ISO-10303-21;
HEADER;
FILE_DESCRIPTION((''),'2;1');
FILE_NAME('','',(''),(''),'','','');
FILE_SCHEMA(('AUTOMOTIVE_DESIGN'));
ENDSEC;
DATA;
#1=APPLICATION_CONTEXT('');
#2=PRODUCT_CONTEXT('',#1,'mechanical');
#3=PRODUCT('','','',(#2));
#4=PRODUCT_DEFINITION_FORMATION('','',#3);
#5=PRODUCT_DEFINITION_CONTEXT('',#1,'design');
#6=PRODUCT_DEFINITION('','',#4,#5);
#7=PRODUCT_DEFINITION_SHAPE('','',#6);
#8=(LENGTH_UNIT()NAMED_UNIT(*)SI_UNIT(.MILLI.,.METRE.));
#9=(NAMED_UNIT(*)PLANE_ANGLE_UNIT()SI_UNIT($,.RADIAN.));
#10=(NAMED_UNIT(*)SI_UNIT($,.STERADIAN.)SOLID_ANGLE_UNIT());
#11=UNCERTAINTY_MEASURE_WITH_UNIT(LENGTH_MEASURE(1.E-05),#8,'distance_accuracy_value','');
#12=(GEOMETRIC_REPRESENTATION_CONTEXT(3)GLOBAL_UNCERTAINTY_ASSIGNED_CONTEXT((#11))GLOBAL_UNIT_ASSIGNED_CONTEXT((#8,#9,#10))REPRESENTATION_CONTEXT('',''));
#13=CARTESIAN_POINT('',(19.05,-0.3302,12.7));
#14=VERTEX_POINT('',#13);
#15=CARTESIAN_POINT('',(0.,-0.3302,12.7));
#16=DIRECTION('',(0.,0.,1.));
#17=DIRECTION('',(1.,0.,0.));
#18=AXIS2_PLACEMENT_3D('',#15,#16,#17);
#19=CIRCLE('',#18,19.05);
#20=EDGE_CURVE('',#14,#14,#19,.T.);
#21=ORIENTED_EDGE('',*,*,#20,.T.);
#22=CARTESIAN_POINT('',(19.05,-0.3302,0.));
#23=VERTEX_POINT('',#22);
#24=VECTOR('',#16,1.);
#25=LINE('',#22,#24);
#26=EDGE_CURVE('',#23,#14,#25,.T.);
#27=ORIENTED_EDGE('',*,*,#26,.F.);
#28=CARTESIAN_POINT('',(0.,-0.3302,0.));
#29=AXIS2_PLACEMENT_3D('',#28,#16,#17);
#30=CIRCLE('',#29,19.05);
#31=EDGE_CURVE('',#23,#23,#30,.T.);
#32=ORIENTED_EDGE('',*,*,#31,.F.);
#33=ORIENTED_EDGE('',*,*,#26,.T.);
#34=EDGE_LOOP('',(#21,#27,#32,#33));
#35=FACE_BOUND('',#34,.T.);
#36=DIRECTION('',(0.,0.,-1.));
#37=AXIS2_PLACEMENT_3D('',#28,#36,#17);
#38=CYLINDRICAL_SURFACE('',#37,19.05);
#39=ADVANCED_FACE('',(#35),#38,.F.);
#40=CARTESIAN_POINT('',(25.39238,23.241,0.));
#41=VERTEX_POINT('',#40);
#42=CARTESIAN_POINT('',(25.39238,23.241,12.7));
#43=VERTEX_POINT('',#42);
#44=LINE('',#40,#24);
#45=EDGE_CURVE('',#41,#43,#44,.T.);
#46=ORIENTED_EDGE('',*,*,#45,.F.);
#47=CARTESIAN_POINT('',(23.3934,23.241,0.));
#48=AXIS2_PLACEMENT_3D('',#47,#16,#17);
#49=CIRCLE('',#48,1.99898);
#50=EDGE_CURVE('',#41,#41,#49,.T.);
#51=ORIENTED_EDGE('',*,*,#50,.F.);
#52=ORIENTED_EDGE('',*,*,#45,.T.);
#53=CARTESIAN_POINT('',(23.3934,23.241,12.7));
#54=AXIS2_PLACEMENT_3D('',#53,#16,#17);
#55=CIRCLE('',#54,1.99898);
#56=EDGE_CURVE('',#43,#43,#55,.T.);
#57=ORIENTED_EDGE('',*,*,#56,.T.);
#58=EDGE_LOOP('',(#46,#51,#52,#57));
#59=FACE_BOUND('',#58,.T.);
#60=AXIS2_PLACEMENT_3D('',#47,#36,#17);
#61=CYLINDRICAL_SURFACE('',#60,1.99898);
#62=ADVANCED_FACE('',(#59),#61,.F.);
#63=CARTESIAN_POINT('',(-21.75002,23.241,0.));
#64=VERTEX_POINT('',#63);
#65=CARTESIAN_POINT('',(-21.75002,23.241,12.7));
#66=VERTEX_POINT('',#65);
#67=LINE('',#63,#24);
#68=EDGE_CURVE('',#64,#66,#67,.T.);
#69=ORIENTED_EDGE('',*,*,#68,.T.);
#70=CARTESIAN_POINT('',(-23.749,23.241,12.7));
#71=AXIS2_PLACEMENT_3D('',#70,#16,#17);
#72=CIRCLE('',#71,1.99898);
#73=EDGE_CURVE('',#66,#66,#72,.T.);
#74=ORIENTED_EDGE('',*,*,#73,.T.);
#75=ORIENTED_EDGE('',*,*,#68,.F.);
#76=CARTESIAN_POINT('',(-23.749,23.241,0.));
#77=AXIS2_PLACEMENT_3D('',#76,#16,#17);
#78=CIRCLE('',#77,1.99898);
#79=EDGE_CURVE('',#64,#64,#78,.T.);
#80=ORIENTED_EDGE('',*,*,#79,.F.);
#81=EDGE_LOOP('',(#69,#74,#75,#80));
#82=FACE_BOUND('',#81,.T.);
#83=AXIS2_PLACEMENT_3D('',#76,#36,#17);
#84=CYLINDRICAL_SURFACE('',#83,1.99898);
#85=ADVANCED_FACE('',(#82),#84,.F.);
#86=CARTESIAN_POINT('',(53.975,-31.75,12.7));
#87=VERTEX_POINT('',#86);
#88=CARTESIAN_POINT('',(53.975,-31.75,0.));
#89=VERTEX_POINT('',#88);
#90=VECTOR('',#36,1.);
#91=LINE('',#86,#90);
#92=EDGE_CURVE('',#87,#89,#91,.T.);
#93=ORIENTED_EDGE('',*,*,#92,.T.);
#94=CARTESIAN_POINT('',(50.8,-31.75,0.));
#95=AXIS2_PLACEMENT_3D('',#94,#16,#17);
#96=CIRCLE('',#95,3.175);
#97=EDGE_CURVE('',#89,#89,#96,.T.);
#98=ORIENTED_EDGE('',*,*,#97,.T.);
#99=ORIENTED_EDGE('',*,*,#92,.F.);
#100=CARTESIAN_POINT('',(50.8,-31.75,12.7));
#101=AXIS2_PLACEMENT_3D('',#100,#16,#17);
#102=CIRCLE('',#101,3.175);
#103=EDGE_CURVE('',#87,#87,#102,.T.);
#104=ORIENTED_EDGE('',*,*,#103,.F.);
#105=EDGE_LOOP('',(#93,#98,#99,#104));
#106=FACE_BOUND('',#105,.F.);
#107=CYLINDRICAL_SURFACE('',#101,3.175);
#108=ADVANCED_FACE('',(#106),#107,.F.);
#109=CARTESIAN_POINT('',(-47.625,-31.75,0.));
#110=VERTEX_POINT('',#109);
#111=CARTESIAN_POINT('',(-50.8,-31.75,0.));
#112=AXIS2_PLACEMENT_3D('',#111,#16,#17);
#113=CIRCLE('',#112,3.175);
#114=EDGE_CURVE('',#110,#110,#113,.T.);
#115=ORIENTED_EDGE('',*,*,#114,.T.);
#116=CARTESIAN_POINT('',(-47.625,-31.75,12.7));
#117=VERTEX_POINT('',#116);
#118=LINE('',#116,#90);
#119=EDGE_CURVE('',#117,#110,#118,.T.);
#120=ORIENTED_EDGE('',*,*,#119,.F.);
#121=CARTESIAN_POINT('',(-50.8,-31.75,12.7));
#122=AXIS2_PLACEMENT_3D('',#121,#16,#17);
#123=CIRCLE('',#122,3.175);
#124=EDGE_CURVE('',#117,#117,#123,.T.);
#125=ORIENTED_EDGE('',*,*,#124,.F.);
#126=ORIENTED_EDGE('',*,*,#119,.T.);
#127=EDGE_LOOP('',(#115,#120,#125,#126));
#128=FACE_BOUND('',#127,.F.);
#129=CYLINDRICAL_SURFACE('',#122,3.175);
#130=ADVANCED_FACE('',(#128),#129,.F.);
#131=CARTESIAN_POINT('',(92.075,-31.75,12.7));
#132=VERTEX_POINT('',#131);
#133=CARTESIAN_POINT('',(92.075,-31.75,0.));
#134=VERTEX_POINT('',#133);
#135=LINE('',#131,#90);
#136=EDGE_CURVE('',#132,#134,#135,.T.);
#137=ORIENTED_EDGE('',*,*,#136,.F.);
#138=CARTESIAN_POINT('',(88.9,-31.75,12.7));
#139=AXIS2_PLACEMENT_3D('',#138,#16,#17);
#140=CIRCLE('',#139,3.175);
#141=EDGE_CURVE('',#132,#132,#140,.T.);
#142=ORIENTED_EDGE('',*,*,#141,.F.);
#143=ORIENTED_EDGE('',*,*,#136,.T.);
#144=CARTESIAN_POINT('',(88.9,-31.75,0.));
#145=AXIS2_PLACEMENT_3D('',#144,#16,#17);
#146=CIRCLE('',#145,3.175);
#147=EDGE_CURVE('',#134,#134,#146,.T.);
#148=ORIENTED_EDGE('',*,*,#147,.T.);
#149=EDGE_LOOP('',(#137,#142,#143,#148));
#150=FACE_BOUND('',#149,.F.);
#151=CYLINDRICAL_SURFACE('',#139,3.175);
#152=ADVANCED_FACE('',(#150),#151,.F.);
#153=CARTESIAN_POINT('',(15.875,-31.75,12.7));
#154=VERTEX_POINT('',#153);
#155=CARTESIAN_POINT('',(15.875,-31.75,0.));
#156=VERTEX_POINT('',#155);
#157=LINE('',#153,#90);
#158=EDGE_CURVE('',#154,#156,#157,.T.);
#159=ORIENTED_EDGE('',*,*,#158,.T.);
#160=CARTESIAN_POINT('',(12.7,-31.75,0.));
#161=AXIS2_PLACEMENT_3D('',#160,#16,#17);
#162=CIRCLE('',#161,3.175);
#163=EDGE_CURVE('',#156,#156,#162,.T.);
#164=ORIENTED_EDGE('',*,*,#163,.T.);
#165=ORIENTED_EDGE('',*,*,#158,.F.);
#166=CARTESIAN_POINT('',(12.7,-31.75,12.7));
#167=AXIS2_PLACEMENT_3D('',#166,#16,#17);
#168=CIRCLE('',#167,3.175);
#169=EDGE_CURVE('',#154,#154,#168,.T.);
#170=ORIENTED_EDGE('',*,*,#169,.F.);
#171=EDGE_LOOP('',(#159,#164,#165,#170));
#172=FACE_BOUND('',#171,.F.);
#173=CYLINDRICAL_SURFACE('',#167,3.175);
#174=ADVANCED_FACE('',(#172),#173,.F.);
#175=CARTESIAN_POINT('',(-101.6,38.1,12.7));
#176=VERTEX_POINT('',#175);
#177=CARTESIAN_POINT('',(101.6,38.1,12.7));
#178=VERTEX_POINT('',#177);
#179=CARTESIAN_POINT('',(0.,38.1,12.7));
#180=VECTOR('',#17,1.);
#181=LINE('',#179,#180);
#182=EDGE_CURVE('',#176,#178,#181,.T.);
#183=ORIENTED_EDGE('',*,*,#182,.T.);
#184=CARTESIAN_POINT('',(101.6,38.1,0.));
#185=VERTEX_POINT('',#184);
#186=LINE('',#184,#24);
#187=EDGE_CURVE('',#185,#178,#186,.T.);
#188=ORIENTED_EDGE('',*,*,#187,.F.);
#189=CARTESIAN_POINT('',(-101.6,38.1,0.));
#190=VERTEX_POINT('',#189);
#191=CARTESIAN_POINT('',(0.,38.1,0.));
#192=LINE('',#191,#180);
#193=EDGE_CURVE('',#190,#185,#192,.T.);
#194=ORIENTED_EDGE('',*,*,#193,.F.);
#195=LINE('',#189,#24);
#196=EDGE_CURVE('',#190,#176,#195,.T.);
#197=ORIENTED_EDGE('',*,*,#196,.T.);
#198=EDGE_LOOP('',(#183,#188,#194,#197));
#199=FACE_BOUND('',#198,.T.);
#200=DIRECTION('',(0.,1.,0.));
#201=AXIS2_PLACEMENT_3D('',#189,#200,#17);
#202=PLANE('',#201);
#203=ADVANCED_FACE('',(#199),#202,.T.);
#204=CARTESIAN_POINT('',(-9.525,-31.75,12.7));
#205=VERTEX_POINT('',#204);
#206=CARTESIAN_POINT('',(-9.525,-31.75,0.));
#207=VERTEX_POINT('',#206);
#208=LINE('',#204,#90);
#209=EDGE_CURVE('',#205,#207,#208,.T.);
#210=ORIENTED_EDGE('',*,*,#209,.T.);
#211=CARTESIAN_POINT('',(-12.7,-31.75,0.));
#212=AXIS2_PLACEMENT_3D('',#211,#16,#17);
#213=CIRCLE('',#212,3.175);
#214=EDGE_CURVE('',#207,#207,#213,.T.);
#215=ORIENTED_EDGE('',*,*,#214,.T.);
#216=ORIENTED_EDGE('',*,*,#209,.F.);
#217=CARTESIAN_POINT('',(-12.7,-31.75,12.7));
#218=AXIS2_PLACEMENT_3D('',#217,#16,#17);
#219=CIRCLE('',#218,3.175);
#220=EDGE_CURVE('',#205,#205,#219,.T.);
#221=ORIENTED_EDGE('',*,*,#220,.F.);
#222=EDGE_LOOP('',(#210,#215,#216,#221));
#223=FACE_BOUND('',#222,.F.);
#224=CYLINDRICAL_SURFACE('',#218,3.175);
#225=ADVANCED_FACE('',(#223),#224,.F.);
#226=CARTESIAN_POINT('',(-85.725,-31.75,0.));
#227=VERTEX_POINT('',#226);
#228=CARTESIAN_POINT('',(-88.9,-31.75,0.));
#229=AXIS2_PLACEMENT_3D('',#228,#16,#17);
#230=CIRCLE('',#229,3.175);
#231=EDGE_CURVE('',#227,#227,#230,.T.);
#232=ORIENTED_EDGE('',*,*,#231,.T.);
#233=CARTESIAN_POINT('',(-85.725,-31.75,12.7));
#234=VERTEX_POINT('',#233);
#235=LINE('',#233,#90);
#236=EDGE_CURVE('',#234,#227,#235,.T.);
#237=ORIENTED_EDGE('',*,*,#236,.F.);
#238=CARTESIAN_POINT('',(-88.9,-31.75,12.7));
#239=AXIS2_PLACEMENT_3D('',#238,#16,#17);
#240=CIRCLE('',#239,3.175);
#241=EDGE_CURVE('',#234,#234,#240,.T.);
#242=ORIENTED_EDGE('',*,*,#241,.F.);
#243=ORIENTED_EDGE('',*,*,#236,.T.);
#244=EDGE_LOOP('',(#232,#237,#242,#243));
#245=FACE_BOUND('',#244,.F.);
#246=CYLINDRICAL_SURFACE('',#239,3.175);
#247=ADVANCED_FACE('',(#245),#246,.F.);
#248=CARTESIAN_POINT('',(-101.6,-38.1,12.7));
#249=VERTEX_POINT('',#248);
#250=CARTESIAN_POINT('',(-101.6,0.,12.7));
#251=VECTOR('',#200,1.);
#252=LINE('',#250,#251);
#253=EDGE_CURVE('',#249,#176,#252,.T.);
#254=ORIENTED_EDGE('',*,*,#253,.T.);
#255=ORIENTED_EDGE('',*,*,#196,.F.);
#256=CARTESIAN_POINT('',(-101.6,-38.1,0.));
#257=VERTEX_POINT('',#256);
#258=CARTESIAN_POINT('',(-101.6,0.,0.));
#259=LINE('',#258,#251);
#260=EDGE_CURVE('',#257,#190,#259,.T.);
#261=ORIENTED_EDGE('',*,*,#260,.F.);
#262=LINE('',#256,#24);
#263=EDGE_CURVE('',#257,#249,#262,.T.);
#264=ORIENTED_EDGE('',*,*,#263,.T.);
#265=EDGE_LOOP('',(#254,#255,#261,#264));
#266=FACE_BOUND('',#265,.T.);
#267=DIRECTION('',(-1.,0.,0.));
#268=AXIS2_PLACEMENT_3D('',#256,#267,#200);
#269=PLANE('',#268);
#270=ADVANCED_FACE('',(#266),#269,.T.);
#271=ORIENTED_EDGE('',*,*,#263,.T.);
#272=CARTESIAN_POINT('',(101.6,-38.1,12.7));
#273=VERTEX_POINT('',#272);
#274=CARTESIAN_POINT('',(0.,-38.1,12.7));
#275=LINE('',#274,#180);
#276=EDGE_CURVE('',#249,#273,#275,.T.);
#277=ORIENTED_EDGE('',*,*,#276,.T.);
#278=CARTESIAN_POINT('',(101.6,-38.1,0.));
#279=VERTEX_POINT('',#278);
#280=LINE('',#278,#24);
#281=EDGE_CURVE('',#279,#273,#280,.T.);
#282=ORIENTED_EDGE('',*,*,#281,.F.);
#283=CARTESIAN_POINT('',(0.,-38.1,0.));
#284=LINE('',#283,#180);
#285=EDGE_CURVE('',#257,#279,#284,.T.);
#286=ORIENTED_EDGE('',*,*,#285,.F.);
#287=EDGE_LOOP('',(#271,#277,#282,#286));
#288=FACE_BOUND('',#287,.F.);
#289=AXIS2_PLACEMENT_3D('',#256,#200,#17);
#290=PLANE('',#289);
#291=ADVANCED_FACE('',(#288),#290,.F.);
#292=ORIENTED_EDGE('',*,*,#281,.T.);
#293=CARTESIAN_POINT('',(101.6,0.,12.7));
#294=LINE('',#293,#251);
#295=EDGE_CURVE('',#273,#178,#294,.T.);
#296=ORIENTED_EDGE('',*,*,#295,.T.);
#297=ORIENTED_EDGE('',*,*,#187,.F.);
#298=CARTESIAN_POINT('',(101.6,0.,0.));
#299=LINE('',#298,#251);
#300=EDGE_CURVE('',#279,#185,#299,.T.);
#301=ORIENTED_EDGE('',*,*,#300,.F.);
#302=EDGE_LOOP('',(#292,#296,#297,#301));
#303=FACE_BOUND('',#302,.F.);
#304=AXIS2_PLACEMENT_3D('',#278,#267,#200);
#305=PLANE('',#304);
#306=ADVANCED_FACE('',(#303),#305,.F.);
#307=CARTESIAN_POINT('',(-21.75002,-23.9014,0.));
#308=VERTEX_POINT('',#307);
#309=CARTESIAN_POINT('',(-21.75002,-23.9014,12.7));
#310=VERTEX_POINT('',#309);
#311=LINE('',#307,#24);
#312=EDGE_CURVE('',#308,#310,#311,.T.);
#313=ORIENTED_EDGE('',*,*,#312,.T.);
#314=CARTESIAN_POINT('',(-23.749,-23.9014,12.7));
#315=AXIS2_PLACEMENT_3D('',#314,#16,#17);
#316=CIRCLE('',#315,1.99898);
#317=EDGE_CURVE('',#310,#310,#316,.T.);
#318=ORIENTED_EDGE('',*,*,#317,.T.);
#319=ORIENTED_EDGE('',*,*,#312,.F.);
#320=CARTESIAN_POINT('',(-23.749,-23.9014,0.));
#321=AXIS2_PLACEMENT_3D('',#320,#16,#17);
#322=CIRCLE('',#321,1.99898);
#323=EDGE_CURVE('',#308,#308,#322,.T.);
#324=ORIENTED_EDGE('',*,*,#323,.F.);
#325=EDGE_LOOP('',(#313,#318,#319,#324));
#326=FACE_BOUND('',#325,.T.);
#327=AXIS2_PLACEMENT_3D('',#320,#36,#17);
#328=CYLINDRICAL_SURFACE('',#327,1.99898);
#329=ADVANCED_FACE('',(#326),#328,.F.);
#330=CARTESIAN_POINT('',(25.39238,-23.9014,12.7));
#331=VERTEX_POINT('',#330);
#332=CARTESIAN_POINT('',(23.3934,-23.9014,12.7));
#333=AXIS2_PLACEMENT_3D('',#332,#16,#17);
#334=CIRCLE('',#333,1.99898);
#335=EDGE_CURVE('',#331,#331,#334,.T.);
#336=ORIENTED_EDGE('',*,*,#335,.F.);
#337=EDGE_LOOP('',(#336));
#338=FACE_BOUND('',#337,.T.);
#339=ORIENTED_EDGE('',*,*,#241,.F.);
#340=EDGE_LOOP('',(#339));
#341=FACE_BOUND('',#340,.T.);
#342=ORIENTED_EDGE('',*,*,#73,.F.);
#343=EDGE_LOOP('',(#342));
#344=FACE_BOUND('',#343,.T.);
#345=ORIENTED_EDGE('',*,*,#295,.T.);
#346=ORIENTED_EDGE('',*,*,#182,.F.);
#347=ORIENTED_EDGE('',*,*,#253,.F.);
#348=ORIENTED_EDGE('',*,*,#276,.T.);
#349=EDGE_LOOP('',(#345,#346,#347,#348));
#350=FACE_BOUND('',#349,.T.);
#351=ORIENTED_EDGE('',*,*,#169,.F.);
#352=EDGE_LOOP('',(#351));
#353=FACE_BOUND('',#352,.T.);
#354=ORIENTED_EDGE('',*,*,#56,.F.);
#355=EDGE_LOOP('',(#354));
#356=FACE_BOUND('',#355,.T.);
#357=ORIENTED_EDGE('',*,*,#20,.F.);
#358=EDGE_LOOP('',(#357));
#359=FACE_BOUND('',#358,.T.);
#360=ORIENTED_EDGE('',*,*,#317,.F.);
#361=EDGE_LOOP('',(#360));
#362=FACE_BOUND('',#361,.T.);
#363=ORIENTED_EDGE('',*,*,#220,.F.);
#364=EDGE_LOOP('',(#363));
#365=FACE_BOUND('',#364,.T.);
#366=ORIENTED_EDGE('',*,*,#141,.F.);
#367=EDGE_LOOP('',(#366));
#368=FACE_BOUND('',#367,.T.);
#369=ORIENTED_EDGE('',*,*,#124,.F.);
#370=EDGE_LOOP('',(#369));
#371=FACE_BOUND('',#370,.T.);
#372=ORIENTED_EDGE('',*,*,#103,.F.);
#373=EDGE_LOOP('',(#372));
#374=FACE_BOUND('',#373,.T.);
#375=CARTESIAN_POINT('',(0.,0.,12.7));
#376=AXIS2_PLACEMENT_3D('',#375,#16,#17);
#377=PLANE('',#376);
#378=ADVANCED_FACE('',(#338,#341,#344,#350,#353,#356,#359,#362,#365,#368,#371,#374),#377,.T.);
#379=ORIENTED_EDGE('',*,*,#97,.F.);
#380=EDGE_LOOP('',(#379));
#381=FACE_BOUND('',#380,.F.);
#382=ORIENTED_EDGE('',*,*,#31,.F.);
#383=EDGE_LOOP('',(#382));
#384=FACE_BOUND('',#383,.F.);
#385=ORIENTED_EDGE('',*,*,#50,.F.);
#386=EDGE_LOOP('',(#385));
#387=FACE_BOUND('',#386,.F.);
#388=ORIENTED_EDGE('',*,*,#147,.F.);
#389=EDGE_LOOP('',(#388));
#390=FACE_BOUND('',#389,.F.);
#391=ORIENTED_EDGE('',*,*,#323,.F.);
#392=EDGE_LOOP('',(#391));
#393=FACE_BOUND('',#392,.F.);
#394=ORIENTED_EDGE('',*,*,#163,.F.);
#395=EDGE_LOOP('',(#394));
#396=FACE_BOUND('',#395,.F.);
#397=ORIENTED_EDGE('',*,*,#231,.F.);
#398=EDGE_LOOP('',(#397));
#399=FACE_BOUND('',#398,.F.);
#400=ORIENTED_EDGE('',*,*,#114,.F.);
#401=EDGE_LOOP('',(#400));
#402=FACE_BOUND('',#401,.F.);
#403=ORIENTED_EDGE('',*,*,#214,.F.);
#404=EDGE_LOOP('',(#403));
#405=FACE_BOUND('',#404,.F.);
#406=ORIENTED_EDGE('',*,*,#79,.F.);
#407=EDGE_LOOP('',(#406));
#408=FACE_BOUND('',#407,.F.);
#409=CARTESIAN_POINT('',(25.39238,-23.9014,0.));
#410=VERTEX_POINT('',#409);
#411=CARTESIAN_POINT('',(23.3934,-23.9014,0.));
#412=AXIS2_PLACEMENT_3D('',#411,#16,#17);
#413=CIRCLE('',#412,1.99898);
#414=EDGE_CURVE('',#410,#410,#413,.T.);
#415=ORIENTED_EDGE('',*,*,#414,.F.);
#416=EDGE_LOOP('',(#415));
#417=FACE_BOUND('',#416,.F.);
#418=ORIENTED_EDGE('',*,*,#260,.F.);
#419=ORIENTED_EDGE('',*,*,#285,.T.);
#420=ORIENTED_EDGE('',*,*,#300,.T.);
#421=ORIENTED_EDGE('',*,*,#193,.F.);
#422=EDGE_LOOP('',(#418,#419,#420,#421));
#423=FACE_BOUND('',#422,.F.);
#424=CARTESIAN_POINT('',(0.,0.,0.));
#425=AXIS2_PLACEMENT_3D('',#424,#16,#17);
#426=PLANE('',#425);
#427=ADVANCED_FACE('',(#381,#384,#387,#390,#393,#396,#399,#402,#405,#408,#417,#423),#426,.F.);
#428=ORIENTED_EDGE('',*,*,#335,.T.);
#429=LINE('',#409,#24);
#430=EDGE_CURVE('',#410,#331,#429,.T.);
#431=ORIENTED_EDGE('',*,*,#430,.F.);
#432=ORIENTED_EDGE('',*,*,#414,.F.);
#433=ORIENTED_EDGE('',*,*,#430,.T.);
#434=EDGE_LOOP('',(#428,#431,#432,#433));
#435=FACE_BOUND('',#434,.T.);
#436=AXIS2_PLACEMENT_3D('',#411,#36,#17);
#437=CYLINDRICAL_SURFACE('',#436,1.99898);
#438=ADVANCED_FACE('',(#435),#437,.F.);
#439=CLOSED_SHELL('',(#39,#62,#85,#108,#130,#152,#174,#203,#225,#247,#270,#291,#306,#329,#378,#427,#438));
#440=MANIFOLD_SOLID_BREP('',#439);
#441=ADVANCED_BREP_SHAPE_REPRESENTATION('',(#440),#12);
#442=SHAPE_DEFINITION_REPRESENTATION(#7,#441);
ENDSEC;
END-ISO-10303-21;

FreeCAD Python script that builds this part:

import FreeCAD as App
import Part
import Sketcher
from FreeCAD import Vector
Q = App.Units.Quantity

doc = App.newDocument("Part")
body = doc.addObject("PartDesign::Body", "Body")

# Sketch on XY plane
sketch1 = doc.addObject("Sketcher::SketchObject", "Sketch")
body.addObject(sketch1)
sketch1.AttachmentSupport = (doc.XY_Plane, [""])
sketch1.MapMode = "FlatFace"
sketch1.addGeometry([
    Part.LineSegment(Vector(-101.6, 38.1, 0), Vector(-101.6, -38.1, 0)),  # 0
    Part.LineSegment(Vector(-101.6, -38.1, 0), Vector(101.6, -38.1, 0)),  # 1
    Part.LineSegment(Vector(101.6, -38.1, 0), Vector(101.6, 38.1, 0)),  # 2
    Part.LineSegment(Vector(101.6, 38.1, 0), Vector(-101.6, 38.1, 0)),  # 3
    Part.Circle(Vector(-23.7, -23.9, 0), Vector(0, 0, 1), 2),  # 4
    Part.Circle(Vector(23.4, -23.9, 0), Vector(0, 0, 1), 2),  # 5
    Part.Circle(Vector(0, -0.3, 0), Vector(0, 0, 1), 19.1),  # 6
    Part.Circle(Vector(-23.7, 23.2, 0), Vector(0, 0, 1), 2),  # 7
    Part.Circle(Vector(23.4, 23.2, 0), Vector(0, 0, 1), 2),  # 8
], False)
sketch1.addConstraint([
    Sketcher.Constraint("Coincident", 0, 2, 1, 1),
    Sketcher.Constraint("Coincident", 1, 2, 2, 1),
    Sketcher.Constraint("Coincident", 2, 2, 3, 1),
    Sketcher.Constraint("Coincident", 3, 2, 0, 1),
    Sketcher.Constraint("Vertical", 0),
    Sketcher.Constraint("Horizontal", 1),
    Sketcher.Constraint("Vertical", 2),
    Sketcher.Constraint("Horizontal", 3),
    Sketcher.Constraint("Equal", 4, 5),
    Sketcher.Constraint("Equal", 5, 7),
    Sketcher.Constraint("Equal", 7, 8),
    Sketcher.Constraint("Symmetric", 0, 2, 2, 2, -1, 1),
    Sketcher.Constraint("PointOnObject", 6, 3, -2),
    Sketcher.Constraint("Horizontal", 4, 3, 5, 3),
    Sketcher.Constraint("Horizontal", 7, 3, 8, 3),
    Sketcher.Constraint("Vertical", 4, 3, 7, 3),
    Sketcher.Constraint("Vertical", 5, 3, 8, 3),
    Sketcher.Constraint("Diameter", 6, Q("1.5 in")),
    Sketcher.Constraint("DistanceX", 1, 1, 1, 2, Q("8 in")),
    Sketcher.Constraint("DistanceY", 0, 2, 0, 1, Q("3 in")),
    Sketcher.Constraint("Diameter", 4, Q("0.1574 in")),
    Sketcher.Constraint("DistanceX", 4, 3, -1, 1, Q("0.935 in")),
    Sketcher.Constraint("DistanceY", 4, 3, -1, 1, Q("0.941 in")),
    Sketcher.Constraint("DistanceX", -1, 1, 5, 3, Q("0.921 in")),
    Sketcher.Constraint("DistanceY", 6, 3, -1, 1, Q("0.013 in")),
    Sketcher.Constraint("DistanceY", -1, 1, 7, 3, Q("0.915 in")),
])
pad1 = doc.addObject("PartDesign::Pad", "Pad")
body.addObject(pad1)
pad1.Profile = sketch1
pad1.Length = Q("0.5 in")

# Sketch on XY plane
sketch2 = doc.addObject("Sketcher::SketchObject", "Sketch001")
body.addObject(sketch2)
sketch2.AttachmentSupport = (doc.XY_Plane, [""])
sketch2.MapMode = "FlatFace"
sketch2.AttachmentOffset = App.Placement(Vector(0, 0, 0.5 * 25.4), App.Rotation())
sketch2.addGeometry([
    Part.Circle(Vector(-88.9, -31.8, 0), Vector(0, 0, 1), 3.2),  # 0
    Part.Circle(Vector(-50.8, -31.8, 0), Vector(0, 0, 1), 3.2),  # 1
    Part.Circle(Vector(-12.7, -31.8, 0), Vector(0, 0, 1), 3.2),  # 2
    Part.Circle(Vector(12.7, -31.8, 0), Vector(0, 0, 1), 3.2),  # 3
    Part.Circle(Vector(50.8, -31.8, 0), Vector(0, 0, 1), 3.2),  # 4
    Part.Circle(Vector(88.9, -31.8, 0), Vector(0, 0, 1), 3.2),  # 5
], False)
sketch2.addConstraint([
    Sketcher.Constraint("Equal", 0, 1),
    Sketcher.Constraint("Equal", 1, 2),
    Sketcher.Constraint("Equal", 2, 3),
    Sketcher.Constraint("Equal", 3, 4),
    Sketcher.Constraint("Equal", 4, 5),
    Sketcher.Constraint("Symmetric", 2, 3, 3, 3, -2),
    Sketcher.Constraint("Symmetric", 1, 3, 4, 3, -2),
    Sketcher.Constraint("Symmetric", 0, 3, 5, 3, -2),
    Sketcher.Constraint("Horizontal", 0, 3, 1, 3),
    Sketcher.Constraint("Horizontal", 1, 3, 2, 3),
    Sketcher.Constraint("Diameter", 0, Q("0.25 in")),
    Sketcher.Constraint("DistanceX", 1, 3, -1, 1, Q("2 in")),
    Sketcher.Constraint("DistanceX", 0, 3, 2, 3, Q("3 in")),
    Sketcher.Constraint("DistanceX", 2, 3, 3, 3, Q("1 in")),
    Sketcher.Constraint("DistanceY", 0, 3, -1, 1, Q("1.25 in")),
])
pocket1 = doc.addObject("PartDesign::Pocket", "Pocket")
body.addObject(pocket1)
pocket1.Profile = sketch2
pocket1.Type = "ThroughAll"

doc.recompute()
